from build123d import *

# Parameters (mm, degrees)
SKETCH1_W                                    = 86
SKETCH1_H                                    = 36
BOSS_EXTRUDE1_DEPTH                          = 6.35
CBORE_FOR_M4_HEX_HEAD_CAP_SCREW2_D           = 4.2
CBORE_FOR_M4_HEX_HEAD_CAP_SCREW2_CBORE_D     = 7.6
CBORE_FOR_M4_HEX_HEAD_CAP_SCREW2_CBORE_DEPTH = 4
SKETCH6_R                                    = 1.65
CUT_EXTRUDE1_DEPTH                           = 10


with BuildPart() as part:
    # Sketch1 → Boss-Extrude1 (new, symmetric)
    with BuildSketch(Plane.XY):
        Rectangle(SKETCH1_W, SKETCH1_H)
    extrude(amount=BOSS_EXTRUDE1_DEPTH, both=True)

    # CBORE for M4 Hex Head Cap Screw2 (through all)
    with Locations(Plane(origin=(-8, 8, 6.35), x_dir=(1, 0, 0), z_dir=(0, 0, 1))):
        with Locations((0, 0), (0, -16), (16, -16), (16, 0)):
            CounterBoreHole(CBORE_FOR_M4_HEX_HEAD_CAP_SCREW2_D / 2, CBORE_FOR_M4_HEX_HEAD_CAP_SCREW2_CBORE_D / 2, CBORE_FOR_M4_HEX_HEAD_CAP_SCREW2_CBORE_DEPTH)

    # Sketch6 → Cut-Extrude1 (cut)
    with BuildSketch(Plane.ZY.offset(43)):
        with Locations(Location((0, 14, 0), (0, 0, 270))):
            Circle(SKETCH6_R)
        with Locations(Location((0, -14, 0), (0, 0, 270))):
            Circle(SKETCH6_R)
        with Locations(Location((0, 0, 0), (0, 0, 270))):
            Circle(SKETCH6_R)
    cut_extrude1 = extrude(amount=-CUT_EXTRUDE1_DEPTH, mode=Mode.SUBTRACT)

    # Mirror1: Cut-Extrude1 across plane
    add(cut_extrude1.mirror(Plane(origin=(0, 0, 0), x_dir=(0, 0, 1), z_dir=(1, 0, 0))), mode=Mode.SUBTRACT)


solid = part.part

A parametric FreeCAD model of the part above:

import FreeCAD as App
import Part
import Sketcher
Q = App.Units.Quantity


def add_polygon(sketch, points):
    """Adds a closed chain of lines whose ends are joined by coincident constraints."""
    first, n = sketch.GeometryCount, len(points)
    for a, b in zip(points, points[1:] + points[:1]):
        sketch.addGeometry(Part.LineSegment(App.Vector(*a, 0), App.Vector(*b, 0)), False)
    for i in range(n):
        sketch.addConstraint(Sketcher.Constraint("Coincident", first + i, 2, first + (i + 1) % n, 1))

doc = App.newDocument("Part")
body = doc.addObject("PartDesign::Body", "Body")

# Sketch on XY plane
sketch1 = doc.addObject("Sketcher::SketchObject", "Sketch")
body.addObject(sketch1)
sketch1.AttachmentSupport = (doc.XY_Plane, [""])
sketch1.MapMode = "FlatFace"
add_polygon(sketch1, [(-43, 18), (-43, -18), (43, -18), (43, 18)])  # lines 0-3
sketch1.addConstraint([
    Sketcher.Constraint("Vertical", 0),
    Sketcher.Constraint("Horizontal", 1),
    Sketcher.Constraint("Vertical", 2),
    Sketcher.Constraint("Horizontal", 3),
    Sketcher.Constraint("Symmetric", 0, 2, 2, 2, -1, 1),
    Sketcher.Constraint("DistanceX", 1, 1, 1, 2, Q("86 mm")),
    Sketcher.Constraint("DistanceY", 0, 2, 0, 1, Q("36 mm")),
])
pad1 = doc.addObject("PartDesign::Pad", "Pad")
body.addObject(pad1)
pad1.Profile = sketch1
pad1.Length = 12.7
pad1.Midplane = True

# Sketch on XY plane
sketch2 = doc.addObject("Sketcher::SketchObject", "Sketch001")
body.addObject(sketch2)
sketch2.AttachmentSupport = (doc.XY_Plane, [""])
sketch2.MapMode = "FlatFace"
sketch2.AttachmentOffset = App.Placement(App.Vector(0, 0, 6.35), App.Rotation())
sketch2.addGeometry([
    Part.Circle(App.Vector(-8, 8, 0), App.Vector(0, 0, 1), 2.1),
    Part.Circle(App.Vector(-8, -8, 0), App.Vector(0, 0, 1), 2.1),
    Part.Circle(App.Vector(8, -8, 0), App.Vector(0, 0, 1), 2.1),
    Part.Circle(App.Vector(8, 8, 0), App.Vector(0, 0, 1), 2.1),
], False)
sketch2.addConstraint([
    Sketcher.Constraint("Equal", 0, 1),
    Sketcher.Constraint("Equal", 1, 2),
    Sketcher.Constraint("Equal", 2, 3),
    Sketcher.Constraint("Symmetric", 0, 3, 2, 3, -1, 1),
    Sketcher.Constraint("Symmetric", 1, 3, 3, 3, -1, 1),
    Sketcher.Constraint("Symmetric", 1, 3, 2, 3, -2),
    Sketcher.Constraint("Diameter", 0, Q("4.2 mm")),
    Sketcher.Constraint("DistanceX", 0, 3, -1, 1, Q("8 mm")),
    Sketcher.Constraint("DistanceY", -1, 1, 0, 3, Q("8 mm")),
])
doc.recompute()
hole = doc.addObject("PartDesign::Hole", "Hole")
body.addObject(hole)
hole.Profile = sketch2
hole.ThreadType = "None"
hole.Diameter = 4.2
hole.DepthType = "ThroughAll"
hole.HoleCutType = "Counterbore"
hole.HoleCutDiameter = 7.6
hole.HoleCutDepth = 4

# Sketch on YZ plane
sketch3 = doc.addObject("Sketcher::SketchObject", "Sketch002")
body.addObject(sketch3)
sketch3.AttachmentSupport = (doc.YZ_Plane, [""])
sketch3.MapMode = "FlatFace"
sketch3.AttachmentOffset = App.Placement(App.Vector(0, 0, -43), App.Rotation())
sketch3.addGeometry([
    Part.Circle(App.Vector(14, 0, 0), App.Vector(0, 0, 1), 1.65),
    Part.Circle(App.Vector(-14, 0, 0), App.Vector(0, 0, 1), 1.65),
    Part.Circle(App.Vector(0, 0, 0), App.Vector(0, 0, 1), 1.65),
], False)
sketch3.addConstraint([
    Sketcher.Constraint("Coincident", 2, 3, -1, 1),
    Sketcher.Constraint("Equal", 0, 1),
    Sketcher.Constraint("Equal", 1, 2),
    Sketcher.Constraint("Symmetric", 0, 3, 1, 3, -1, 1),
    Sketcher.Constraint("PointOnObject", 0, 3, -1),
    Sketcher.Constraint("Diameter", 0, Q("3.3 mm")),
    Sketcher.Constraint("DistanceX", -1, 1, 0, 3, Q("14 mm")),
])
pocket1 = doc.addObject("PartDesign::Pocket", "Pocket")
body.addObject(pocket1)
pocket1.Profile = sketch3
pocket1.Length = 10
pocket1.Reversed = True
doc.recompute()

mirrored = doc.addObject("PartDesign::Mirrored", "Mirrored")
body.addObject(mirrored)
mirrored.Originals = [pocket1]
mirrored.MirrorPlane = (doc.YZ_Plane, [""])
body.Tip = mirrored

doc.recompute()
